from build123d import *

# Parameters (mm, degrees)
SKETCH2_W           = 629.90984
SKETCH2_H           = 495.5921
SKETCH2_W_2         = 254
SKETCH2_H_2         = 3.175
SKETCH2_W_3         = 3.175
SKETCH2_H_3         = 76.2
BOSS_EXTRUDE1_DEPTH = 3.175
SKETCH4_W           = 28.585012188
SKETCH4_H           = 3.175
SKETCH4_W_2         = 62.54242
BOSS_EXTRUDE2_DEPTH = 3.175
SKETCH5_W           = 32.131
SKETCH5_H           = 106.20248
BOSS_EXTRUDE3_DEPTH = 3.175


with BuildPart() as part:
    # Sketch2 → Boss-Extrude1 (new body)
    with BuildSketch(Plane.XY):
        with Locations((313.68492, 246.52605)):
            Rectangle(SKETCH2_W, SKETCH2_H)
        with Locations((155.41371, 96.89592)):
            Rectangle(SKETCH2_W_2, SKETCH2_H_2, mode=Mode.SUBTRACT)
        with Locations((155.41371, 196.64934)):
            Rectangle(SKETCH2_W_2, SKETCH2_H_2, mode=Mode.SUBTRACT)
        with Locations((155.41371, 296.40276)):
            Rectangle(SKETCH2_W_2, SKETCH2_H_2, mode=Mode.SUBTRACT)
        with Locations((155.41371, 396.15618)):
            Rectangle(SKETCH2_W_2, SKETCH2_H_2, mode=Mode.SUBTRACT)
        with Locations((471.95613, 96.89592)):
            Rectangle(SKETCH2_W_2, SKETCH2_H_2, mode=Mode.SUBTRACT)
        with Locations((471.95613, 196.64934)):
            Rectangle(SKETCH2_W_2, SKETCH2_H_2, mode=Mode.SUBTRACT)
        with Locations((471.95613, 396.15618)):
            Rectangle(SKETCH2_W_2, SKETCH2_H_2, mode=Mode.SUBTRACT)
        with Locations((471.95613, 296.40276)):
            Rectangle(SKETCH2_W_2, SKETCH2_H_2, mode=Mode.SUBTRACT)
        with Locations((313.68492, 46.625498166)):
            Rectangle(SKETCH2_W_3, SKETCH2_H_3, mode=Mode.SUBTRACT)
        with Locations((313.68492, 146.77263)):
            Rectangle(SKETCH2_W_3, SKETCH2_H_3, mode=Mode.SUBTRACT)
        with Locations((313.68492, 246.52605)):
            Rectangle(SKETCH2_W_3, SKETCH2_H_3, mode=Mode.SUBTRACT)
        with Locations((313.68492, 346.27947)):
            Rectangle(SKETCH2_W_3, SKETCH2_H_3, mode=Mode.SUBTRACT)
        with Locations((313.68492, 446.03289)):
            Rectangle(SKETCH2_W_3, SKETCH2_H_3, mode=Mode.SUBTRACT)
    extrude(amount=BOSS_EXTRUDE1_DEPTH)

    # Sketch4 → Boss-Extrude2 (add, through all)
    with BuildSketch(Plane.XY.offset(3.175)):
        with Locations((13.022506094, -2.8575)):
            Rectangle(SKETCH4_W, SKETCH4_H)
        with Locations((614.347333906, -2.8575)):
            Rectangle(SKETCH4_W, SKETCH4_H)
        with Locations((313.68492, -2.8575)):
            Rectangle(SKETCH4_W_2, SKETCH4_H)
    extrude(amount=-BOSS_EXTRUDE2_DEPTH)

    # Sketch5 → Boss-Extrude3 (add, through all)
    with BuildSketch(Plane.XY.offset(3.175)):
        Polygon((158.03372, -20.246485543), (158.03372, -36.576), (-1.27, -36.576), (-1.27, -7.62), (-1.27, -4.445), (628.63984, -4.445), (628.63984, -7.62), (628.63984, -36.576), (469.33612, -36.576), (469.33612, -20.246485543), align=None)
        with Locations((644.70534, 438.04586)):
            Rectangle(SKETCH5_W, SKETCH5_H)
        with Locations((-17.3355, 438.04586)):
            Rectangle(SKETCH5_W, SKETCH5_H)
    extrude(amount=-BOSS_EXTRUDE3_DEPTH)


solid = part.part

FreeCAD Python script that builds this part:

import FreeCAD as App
import Part
import Sketcher
from FreeCAD import Vector
Q = App.Units.Quantity

doc = App.newDocument("Part")
body = doc.addObject("PartDesign::Body", "Body")

# Sketch on XY plane
sketch1 = doc.addObject("Sketcher::SketchObject", "Sketch")
body.addObject(sketch1)
sketch1.AttachmentSupport = (doc.XY_Plane, [""])
sketch1.MapMode = "FlatFace"
sketch1.addGeometry([
    Part.LineSegment(Vector(-1.27, 494.3221, 0), Vector(-1.27, -1.27, 0)),  # 0
    Part.LineSegment(Vector(-1.27, -1.27, 0), Vector(628.63984, -1.27, 0)),  # 1
    Part.LineSegment(Vector(628.63984, -1.27, 0), Vector(628.63984, 494.3221, 0)),  # 2
    Part.LineSegment(Vector(628.63984, 494.3221, 0), Vector(-1.27, 494.3221, 0)),  # 3
    Part.LineSegment(Vector(282.41371, 95.30842, 0), Vector(28.41371, 95.30842, 0)),  # 4
    Part.LineSegment(Vector(28.41371, 95.30842, 0), Vector(28.41371, 98.48342, 0)),  # 5
    Part.LineSegment(Vector(28.41371, 98.48342, 0), Vector(282.41371, 98.48342, 0)),  # 6
    Part.LineSegment(Vector(282.41371, 98.48342, 0), Vector(282.41371, 95.30842, 0)),  # 7
    Part.LineSegment(Vector(282.41371, 195.06184, 0), Vector(28.41371, 195.06184, 0)),  # 8
    Part.LineSegment(Vector(28.41371, 195.06184, 0), Vector(28.41371, 198.23684, 0)),  # 9
    Part.LineSegment(Vector(28.41371, 198.23684, 0), Vector(282.41371, 198.23684, 0)),  # 10
    Part.LineSegment(Vector(282.41371, 198.23684, 0), Vector(282.41371, 195.06184, 0)),  # 11
    Part.LineSegment(Vector(315.27242, 8.525498, 0), Vector(312.09742, 8.525498, 0)),  # 12
    Part.LineSegment(Vector(312.09742, 8.525498, 0), Vector(312.09742, 84.725498, 0)),  # 13
    Part.LineSegment(Vector(312.09742, 84.725498, 0), Vector(315.27242, 84.725498, 0)),  # 14
    Part.LineSegment(Vector(315.27242, 84.725498, 0), Vector(315.27242, 8.525498, 0)),  # 15
    Part.LineSegment(Vector(598.95613, 95.30842, 0), Vector(344.95613, 95.30842, 0)),  # 16
    Part.LineSegment(Vector(344.95613, 95.30842, 0), Vector(344.95613, 98.48342, 0)),  # 17
    Part.LineSegment(Vector(344.95613, 98.48342, 0), Vector(598.95613, 98.48342, 0)),  # 18
    Part.LineSegment(Vector(598.95613, 98.48342, 0), Vector(598.95613, 95.30842, 0)),  # 19
    Part.LineSegment(Vector(315.27242, 108.67263, 0), Vector(312.09742, 108.67263, 0)),  # 20
    Part.LineSegment(Vector(312.09742, 108.67263, 0), Vector(312.09742, 184.87263, 0)),  # 21
    Part.LineSegment(Vector(312.09742, 184.87263, 0), Vector(315.27242, 184.87263, 0)),  # 22
    Part.LineSegment(Vector(315.27242, 184.87263, 0), Vector(315.27242, 108.67263, 0)),  # 23
    Part.LineSegment(Vector(598.95613, 195.06184, 0), Vector(344.95613, 195.06184, 0)),  # 24
    Part.LineSegment(Vector(344.95613, 195.06184, 0), Vector(344.95613, 198.23684, 0)),  # 25
    Part.LineSegment(Vector(344.95613, 198.23684, 0), Vector(598.95613, 198.23684, 0)),  # 26
    Part.LineSegment(Vector(598.95613, 198.23684, 0), Vector(598.95613, 195.06184, 0)),  # 27
    Part.LineSegment(Vector(282.41371, 294.81526, 0), Vector(28.41371, 294.81526, 0)),  # 28
    Part.LineSegment(Vector(28.41371, 294.81526, 0), Vector(28.41371, 297.99026, 0)),  # 29
    Part.LineSegment(Vector(28.41371, 297.99026, 0), Vector(282.41371, 297.99026, 0)),  # 30
    Part.LineSegment(Vector(282.41371, 297.99026, 0), Vector(282.41371, 294.81526, 0)),  # 31
    Part.LineSegment(Vector(282.41371, 394.56868, 0), Vector(28.41371, 394.56868, 0)),  # 32
    Part.LineSegment(Vector(28.41371, 394.56868, 0), Vector(28.41371, 397.74368, 0)),  # 33
    Part.LineSegment(Vector(28.41371, 397.74368, 0), Vector(282.41371, 397.74368, 0)),  # 34
    Part.LineSegment(Vector(282.41371, 397.74368, 0), Vector(282.41371, 394.56868, 0)),  # 35
    Part.LineSegment(Vector(315.27242, 208.42605, 0), Vector(312.09742, 208.42605, 0)),  # 36
    Part.LineSegment(Vector(312.09742, 208.42605, 0), Vector(312.09742, 284.62605, 0)),  # 37
    Part.LineSegment(Vector(312.09742, 284.62605, 0), Vector(315.27242, 284.62605, 0)),  # 38
    Part.LineSegment(Vector(315.27242, 284.62605, 0), Vector(315.27242, 208.42605, 0)),  # 39
    Part.LineSegment(Vector(315.27242, 308.17947, 0), Vector(312.09742, 308.17947, 0)),  # 40
    Part.LineSegment(Vector(312.09742, 308.17947, 0), Vector(312.09742, 384.37947, 0)),  # 41
    Part.LineSegment(Vector(312.09742, 384.37947, 0), Vector(315.27242, 384.37947, 0)),  # 42
    Part.LineSegment(Vector(315.27242, 384.37947, 0), Vector(315.27242, 308.17947, 0)),  # 43
    Part.LineSegment(Vector(598.95613, 294.81526, 0), Vector(344.95613, 294.81526, 0)),  # 44
    Part.LineSegment(Vector(344.95613, 294.81526, 0), Vector(344.95613, 297.99026, 0)),  # 45
    Part.LineSegment(Vector(344.95613, 297.99026, 0), Vector(598.95613, 297.99026, 0)),  # 46
    Part.LineSegment(Vector(598.95613, 297.99026, 0), Vector(598.95613, 294.81526, 0)),  # 47
    Part.LineSegment(Vector(315.27242, 407.93289, 0), Vector(312.09742, 407.93289, 0)),  # 48
    Part.LineSegment(Vector(312.09742, 407.93289, 0), Vector(312.09742, 484.13289, 0)),  # 49
    Part.LineSegment(Vector(312.09742, 484.13289, 0), Vector(315.27242, 484.13289, 0)),  # 50
    Part.LineSegment(Vector(315.27242, 484.13289, 0), Vector(315.27242, 407.93289, 0)),  # 51
    Part.LineSegment(Vector(598.95613, 394.56868, 0), Vector(344.95613, 394.56868, 0)),  # 52
    Part.LineSegment(Vector(344.95613, 394.56868, 0), Vector(344.95613, 397.74368, 0)),  # 53
    Part.LineSegment(Vector(344.95613, 397.74368, 0), Vector(598.95613, 397.74368, 0)),  # 54
    Part.LineSegment(Vector(598.95613, 397.74368, 0), Vector(598.95613, 394.56868, 0)),  # 55
], False)
sketch1.addConstraint([
    Sketcher.Constraint("Coincident", 0, 2, 1, 1),
    Sketcher.Constraint("Coincident", 1, 2, 2, 1),
    Sketcher.Constraint("Coincident", 2, 2, 3, 1),
    Sketcher.Constraint("Coincident", 3, 2, 0, 1),
    Sketcher.Constraint("Coincident", 4, 2, 5, 1),
    Sketcher.Constraint("Coincident", 5, 2, 6, 1),
    Sketcher.Constraint("Coincident", 6, 2, 7, 1),
    Sketcher.Constraint("Coincident", 7, 2, 4, 1),
    Sketcher.Constraint("Coincident", 8, 2, 9, 1),
    Sketcher.Constraint("Coincident", 9, 2, 10, 1),
    Sketcher.Constraint("Coincident", 10, 2, 11, 1),
    Sketcher.Constraint("Coincident", 11, 2, 8, 1),
    Sketcher.Constraint("Coincident", 12, 2, 13, 1),
    Sketcher.Constraint("Coincident", 13, 2, 14, 1),
    Sketcher.Constraint("Coincident", 14, 2, 15, 1),
    Sketcher.Constraint("Coincident", 15, 2, 12, 1),
    Sketcher.Constraint("Coincident", 16, 2, 17, 1),
    Sketcher.Constraint("Coincident", 17, 2, 18, 1),
    Sketcher.Constraint("Coincident", 18, 2, 19, 1),
    Sketcher.Constraint("Coincident", 19, 2, 16, 1),
    Sketcher.Constraint("Coincident", 20, 2, 21, 1),
    Sketcher.Constraint("Coincident", 21, 2, 22, 1),
    Sketcher.Constraint("Coincident", 22, 2, 23, 1),
    Sketcher.Constraint("Coincident", 23, 2, 20, 1),
    Sketcher.Constraint("Coincident", 24, 2, 25, 1),
    Sketcher.Constraint("Coincident", 25, 2, 26, 1),
    Sketcher.Constraint("Coincident", 26, 2, 27, 1),
    Sketcher.Constraint("Coincident", 27, 2, 24, 1),
    Sketcher.Constraint("Coincident", 28, 2, 29, 1),
    Sketcher.Constraint("Coincident", 29, 2, 30, 1),
    Sketcher.Constraint("Coincident", 30, 2, 31, 1),
    Sketcher.Constraint("Coincident", 31, 2, 28, 1),
    Sketcher.Constraint("Coincident", 32, 2, 33, 1),
    Sketcher.Constraint("Coincident", 33, 2, 34, 1),
    Sketcher.Constraint("Coincident", 34, 2, 35, 1),
    Sketcher.Constraint("Coincident", 35, 2, 32, 1),
    Sketcher.Constraint("Coincident", 36, 2, 37, 1),
    Sketcher.Constraint("Coincident", 37, 2, 38, 1),
    Sketcher.Constraint("Coincident", 38, 2, 39, 1),
    Sketcher.Constraint("Coincident", 39, 2, 36, 1),
    Sketcher.Constraint("Coincident", 40, 2, 41, 1),
    Sketcher.Constraint("Coincident", 41, 2, 42, 1),
    Sketcher.Constraint("Coincident", 42, 2, 43, 1),
    Sketcher.Constraint("Coincident", 43, 2, 40, 1),
    Sketcher.Constraint("Coincident", 44, 2, 45, 1),
    Sketcher.Constraint("Coincident", 45, 2, 46, 1),
    Sketcher.Constraint("Coincident", 46, 2, 47, 1),
    Sketcher.Constraint("Coincident", 47, 2, 44, 1),
    Sketcher.Constraint("Coincident", 48, 2, 49, 1),
    Sketcher.Constraint("Coincident", 49, 2, 50, 1),
    Sketcher.Constraint("Coincident", 50, 2, 51, 1),
    Sketcher.Constraint("Coincident", 51, 2, 48, 1),
    Sketcher.Constraint("Coincident", 52, 2, 53, 1),
    Sketcher.Constraint("Coincident", 53, 2, 54, 1),
    Sketcher.Constraint("Coincident", 54, 2, 55, 1),
    Sketcher.Constraint("Coincident", 55, 2, 52, 1),
    Sketcher.Constraint("Vertical", 0),
    Sketcher.Constraint("Horizontal", 1),
    Sketcher.Constraint("Vertical", 2),
    Sketcher.Constraint("Horizontal", 3),
    Sketcher.Constraint("Horizontal", 4),
    Sketcher.Constraint("Vertical", 5),
    Sketcher.Constraint("Horizontal", 6),
    Sketcher.Constraint("Vertical", 7),
    Sketcher.Constraint("Horizontal", 8),
    Sketcher.Constraint("Vertical", 9),
    Sketcher.Constraint("Horizontal", 10),
    Sketcher.Constraint("Vertical", 11),
    Sketcher.Constraint("Horizontal", 12),
    Sketcher.Constraint("Vertical", 13),
    Sketcher.Constraint("Horizontal", 14),
    Sketcher.Constraint("Vertical", 15),
    Sketcher.Constraint("Horizontal", 16),
    Sketcher.Constraint("Vertical", 17),
    Sketcher.Constraint("Horizontal", 18),
    Sketcher.Constraint("Vertical", 19),
    Sketcher.Constraint("Horizontal", 20),
    Sketcher.Constraint("Vertical", 21),
    Sketcher.Constraint("Horizontal", 22),
    Sketcher.Constraint("Vertical", 23),
    Sketcher.Constraint("Horizontal", 24),
    Sketcher.Constraint("Vertical", 25),
    Sketcher.Constraint("Horizontal", 26),
    Sketcher.Constraint("Vertical", 27),
    Sketcher.Constraint("Horizontal", 28),
    Sketcher.Constraint("Vertical", 29),
    Sketcher.Constraint("Horizontal", 30),
    Sketcher.Constraint("Vertical", 31),
    Sketcher.Constraint("Horizontal", 32),
    Sketcher.Constraint("Vertical", 33),
    Sketcher.Constraint("Horizontal", 34),
    Sketcher.Constraint("Vertical", 35),
    Sketcher.Constraint("Horizontal", 36),
    Sketcher.Constraint("Vertical", 37),
    Sketcher.Constraint("Horizontal", 38),
    Sketcher.Constraint("Vertical", 39),
    Sketcher.Constraint("Horizontal", 40),
    Sketcher.Constraint("Vertical", 41),
    Sketcher.Constraint("Horizontal", 42),
    Sketcher.Constraint("Vertical", 43),
    Sketcher.Constraint("Horizontal", 44),
    Sketcher.Constraint("Vertical", 45),
    Sketcher.Constraint("Horizontal", 46),
    Sketcher.Constraint("Vertical", 47),
    Sketcher.Constraint("Horizontal", 48),
    Sketcher.Constraint("Vertical", 49),
    Sketcher.Constraint("Horizontal", 50),
    Sketcher.Constraint("Vertical", 51),
    Sketcher.Constraint("Horizontal", 52),
    Sketcher.Constraint("Vertical", 53),
    Sketcher.Constraint("Horizontal", 54),
    Sketcher.Constraint("Vertical", 55),
    Sketcher.Constraint("Horizontal", 7, 2, 16, 2),
    Sketcher.Constraint("Horizontal", 6, 2, 17, 2),
    Sketcher.Constraint("Horizontal", 11, 2, 24, 2),
    Sketcher.Constraint("Horizontal", 10, 2, 25, 2),
    Sketcher.Constraint("Horizontal", 31, 2, 44, 2),
    Sketcher.Constraint("Horizontal", 30, 2, 45, 2),
    Sketcher.Constraint("Horizontal", 35, 2, 52, 2),
    Sketcher.Constraint("Horizontal", 34, 2, 53, 2),
    Sketcher.Constraint("Vertical", 5, 2, 8, 2),
    Sketcher.Constraint("Vertical", 7, 2, 10, 2),
    Sketcher.Constraint("Vertical", 13, 2, 20, 2),
    Sketcher.Constraint("Vertical", 15, 2, 22, 2),
    Sketcher.Constraint("Vertical", 17, 2, 24, 2),
    Sketcher.Constraint("Vertical", 19, 2, 26, 2),
    Sketcher.Constraint("Vertical", 9, 2, 28, 2),
    Sketcher.Constraint("Vertical", 11, 2, 30, 2),
    Sketcher.Constraint("Vertical", 29, 2, 32, 2),
    Sketcher.Constraint("Vertical", 31, 2, 34, 2),
    Sketcher.Constraint("Vertical", 21, 2, 36, 2),
    Sketcher.Constraint("Vertical", 23, 2, 38, 2),
    Sketcher.Constraint("Vertical", 37, 2, 40, 2),
    Sketcher.Constraint("Vertical", 39, 2, 42, 2),
    Sketcher.Constraint("Vertical", 25, 2, 44, 2),
    Sketcher.Constraint("Vertical", 27, 2, 46, 2),
    Sketcher.Constraint("Vertical", 41, 2, 48, 2),
    Sketcher.Constraint("Vertical", 43, 2, 50, 2),
    Sketcher.Constraint("Vertical", 45, 2, 52, 2),
    Sketcher.Constraint("Vertical", 47, 2, 54, 2),
    Sketcher.Constraint("Equal", 10, 16),
    Sketcher.Constraint("Equal", 50, 5),
    Sketcher.Constraint("Equal", 7, 9),
    Sketcher.Constraint("Equal", 15, 21),
    Sketcher.Constraint("Equal", 27, 29),
    Sketcher.Constraint("Equal", 31, 33),
    Sketcher.Constraint("Equal", 23, 37),
    Sketcher.Constraint("Equal", 39, 41),
    Sketcher.Constraint("Equal", 43, 49),
    Sketcher.Constraint("DistanceX", 4, 2, 4, 1, Q("10 in")),
    Sketcher.Constraint("DistanceY", 13, 1, 13, 2, Q("3 in")),
    Sketcher.Constraint("DistanceX", 12, 2, 12, 1, Q("0.125 in")),
    Sketcher.Constraint("DistanceX", 0, 2, -1, 1, Q("0.05 in")),
    Sketcher.Constraint("DistanceY", 0, 2, -1, 1, Q("0.05 in")),
    Sketcher.Constraint("DistanceX", 1, 1, 1, 2, Q("24.7996 in")),
    Sketcher.Constraint("DistanceY", 0, 2, 0, 1, Q("19.5115 in")),
    Sketcher.Constraint("DistanceY", -1, 1, 4, 2, Q("3.7523 in")),
    Sketcher.Constraint("DistanceY", -1, 1, 8, 2, Q("7.6796 in")),
    Sketcher.Constraint("DistanceX", -1, 1, 12, 2, Q("12.2873 in")),
    Sketcher.Constraint("DistanceY", -1, 1, 28, 2, Q("11.6069 in")),
    Sketcher.Constraint("DistanceY", -1, 1, 32, 2, Q("15.5342 in")),
    Sketcher.Constraint("DistanceX", 7, 2, 16, 2, Q("2.4623 in")),
    Sketcher.Constraint("DistanceY", 21, 2, 36, 2, Q("0.9273 in")),
    Sketcher.Constraint("DistanceY", 37, 2, 40, 2, Q("0.9273 in")),
    Sketcher.Constraint("DistanceY", 41, 2, 48, 2, Q("0.9273 in")),
    Sketcher.Constraint("DistanceY", -1, 1, 12, 2, 8.525498),
    Sketcher.Constraint("DistanceX", -1, 1, 4, 2, 28.41371),
    Sketcher.Constraint("DistanceY", -1, 1, 20, 2, 108.67263),
])
pad1 = doc.addObject("PartDesign::Pad", "Pad")
body.addObject(pad1)
pad1.Profile = sketch1
pad1.Length = Q("0.125 in")

# Sketch on XY plane
sketch2 = doc.addObject("Sketcher::SketchObject", "Sketch001")
body.addObject(sketch2)
sketch2.AttachmentSupport = (doc.XY_Plane, [""])
sketch2.MapMode = "FlatFace"
sketch2.AttachmentOffset = App.Placement(Vector(0, 0, 0.125 * 25.4), App.Rotation())
sketch2.addGeometry([
    Part.LineSegment(Vector(-1.27, -1.27, 0), Vector(-1.27, -4.445, 0)),  # 0
    Part.LineSegment(Vector(-1.27, -4.445, 0), Vector(27.315012, -4.445, 0)),  # 1
    Part.LineSegment(Vector(27.315012, -4.445, 0), Vector(27.315012, -1.27, 0)),  # 2
    Part.LineSegment(Vector(27.315012, -1.27, 0), Vector(-1.27, -1.27, 0)),  # 3
    Part.LineSegment(Vector(600.054828, -1.27, 0), Vector(600.054828, -4.445, 0)),  # 4
    Part.LineSegment(Vector(600.054828, -4.445, 0), Vector(628.63984, -4.445, 0)),  # 5
    Part.LineSegment(Vector(628.63984, -4.445, 0), Vector(628.63984, -1.27, 0)),  # 6
    Part.LineSegment(Vector(628.63984, -1.27, 0), Vector(600.054828, -1.27, 0)),  # 7
    Part.LineSegment(Vector(282.41371, -1.27, 0), Vector(282.41371, -4.445, 0)),  # 8
    Part.LineSegment(Vector(282.41371, -4.445, 0), Vector(344.95613, -4.445, 0)),  # 9
    Part.LineSegment(Vector(344.95613, -4.445, 0), Vector(344.95613, -1.27, 0)),  # 10
    Part.LineSegment(Vector(344.95613, -1.27, 0), Vector(282.41371, -1.27, 0)),  # 11
], False)
sketch2.addConstraint([
    Sketcher.Constraint("Coincident", 0, 2, 1, 1),
    Sketcher.Constraint("Coincident", 1, 2, 2, 1),
    Sketcher.Constraint("Coincident", 2, 2, 3, 1),
    Sketcher.Constraint("Coincident", 3, 2, 0, 1),
    Sketcher.Constraint("Coincident", 4, 2, 5, 1),
    Sketcher.Constraint("Coincident", 5, 2, 6, 1),
    Sketcher.Constraint("Coincident", 6, 2, 7, 1),
    Sketcher.Constraint("Coincident", 7, 2, 4, 1),
    Sketcher.Constraint("Coincident", 8, 2, 9, 1),
    Sketcher.Constraint("Coincident", 9, 2, 10, 1),
    Sketcher.Constraint("Coincident", 10, 2, 11, 1),
    Sketcher.Constraint("Coincident", 11, 2, 8, 1),
    Sketcher.Constraint("Vertical", 0),
    Sketcher.Constraint("Horizontal", 1),
    Sketcher.Constraint("Vertical", 2),
    Sketcher.Constraint("Horizontal", 3),
    Sketcher.Constraint("Vertical", 4),
    Sketcher.Constraint("Horizontal", 5),
    Sketcher.Constraint("Vertical", 6),
    Sketcher.Constraint("Horizontal", 7),
    Sketcher.Constraint("Vertical", 8),
    Sketcher.Constraint("Horizontal", 9),
    Sketcher.Constraint("Vertical", 10),
    Sketcher.Constraint("Horizontal", 11),
    Sketcher.Constraint("Horizontal", 1, 2, 4, 2),
    Sketcher.Constraint("Horizontal", 3, 2, 6, 2),
    Sketcher.Constraint("Horizontal", 5, 2, 8, 2),
    Sketcher.Constraint("Horizontal", 7, 2, 10, 2),
    Sketcher.Constraint("Equal", 3, 5),
    Sketcher.Constraint("DistanceY", 0, 2, 0, 1, Q("0.125 in")),
    Sketcher.Constraint("DistanceX", 0, 2, -1, 1, Q("0.05 in")),
    Sketcher.Constraint("DistanceY", 2, 2, -1, 1, Q("0.05 in")),
    Sketcher.Constraint("DistanceX", 9, 1, 9, 2, Q("2.4623 in")),
    Sketcher.Constraint("DistanceX", -1, 1, 5, 2, Q("24.7496 in")),
    Sketcher.Constraint("DistanceX", 1, 1, 1, 2, 28.585012),
    Sketcher.Constraint("DistanceX", -1, 1, 8, 2, 282.41371),
])
pad2 = doc.addObject("PartDesign::Pad", "Pad001")
body.addObject(pad2)
pad2.Profile = sketch2
pad2.Length = Q("0.125 in")
pad2.Reversed = True

# Sketch on XY plane
sketch3 = doc.addObject("Sketcher::SketchObject", "Sketch002")
body.addObject(sketch3)
sketch3.AttachmentSupport = (doc.XY_Plane, [""])
sketch3.MapMode = "FlatFace"
sketch3.AttachmentOffset = App.Placement(Vector(0, 0, 0.125 * 25.4), App.Rotation())
sketch3.addGeometry([
    Part.LineSegment(Vector(158.03372, -36.576, 0), Vector(158.03372, -20.246486, 0)),  # 0
    Part.LineSegment(Vector(158.03372, -20.246486, 0), Vector(469.33612, -20.246486, 0)),  # 1
    Part.LineSegment(Vector(469.33612, -20.246486, 0), Vector(469.33612, -36.576, 0)),  # 2
    Part.LineSegment(Vector(469.33612, -36.576, 0), Vector(628.63984, -36.576, 0)),  # 3
    Part.LineSegment(Vector(628.63984, -36.576, 0), Vector(628.63984, -4.445, 0)),  # 4
    Part.LineSegment(Vector(628.63984, -4.445, 0), Vector(-1.27, -4.445, 0)),  # 5
    Part.LineSegment(Vector(-1.27, -4.445, 0), Vector(-1.27, -36.576, 0)),  # 6
    Part.LineSegment(Vector(-1.27, -36.576, 0), Vector(158.03372, -36.576, 0)),  # 7
    Part.LineSegment(Vector(628.63984, 491.1471, 0), Vector(628.63984, 384.94462, 0)),  # 8
    Part.LineSegment(Vector(628.63984, 384.94462, 0), Vector(660.77084, 384.94462, 0)),  # 9
    Part.LineSegment(Vector(660.77084, 384.94462, 0), Vector(660.77084, 491.1471, 0)),  # 10
    Part.LineSegment(Vector(660.77084, 491.1471, 0), Vector(628.63984, 491.1471, 0)),  # 11
    Part.LineSegment(Vector(-33.401, 491.1471, 0), Vector(-33.401, 384.94462, 0)),  # 12
    Part.LineSegment(Vector(-33.401, 384.94462, 0), Vector(-1.27, 384.94462, 0)),  # 13
    Part.LineSegment(Vector(-1.27, 384.94462, 0), Vector(-1.27, 491.1471, 0)),  # 14
    Part.LineSegment(Vector(-1.27, 491.1471, 0), Vector(-33.401, 491.1471, 0)),  # 15
], False)
sketch3.addConstraint([
    Sketcher.Constraint("Coincident", 0, 2, 1, 1),
    Sketcher.Constraint("Coincident", 1, 2, 2, 1),
    Sketcher.Constraint("Coincident", 2, 2, 3, 1),
    Sketcher.Constraint("Coincident", 3, 2, 4, 1),
    Sketcher.Constraint("Coincident", 4, 2, 5, 1),
    Sketcher.Constraint("Coincident", 5, 2, 6, 1),
    Sketcher.Constraint("Coincident", 6, 2, 7, 1),
    Sketcher.Constraint("Coincident", 7, 2, 0, 1),
    Sketcher.Constraint("Coincident", 8, 2, 9, 1),
    Sketcher.Constraint("Coincident", 9, 2, 10, 1),
    Sketcher.Constraint("Coincident", 10, 2, 11, 1),
    Sketcher.Constraint("Coincident", 11, 2, 8, 1),
    Sketcher.Constraint("Coincident", 12, 2, 13, 1),
    Sketcher.Constraint("Coincident", 13, 2, 14, 1),
    Sketcher.Constraint("Coincident", 14, 2, 15, 1),
    Sketcher.Constraint("Coincident", 15, 2, 12, 1),
    Sketcher.Constraint("Vertical", 0),
    Sketcher.Constraint("Horizontal", 1),
    Sketcher.Constraint("Vertical", 2),
    Sketcher.Constraint("Horizontal", 3),
    Sketcher.Constraint("Vertical", 4),
    Sketcher.Constraint("Horizontal", 5),
    Sketcher.Constraint("Vertical", 6),
    Sketcher.Constraint("Horizontal", 7),
    Sketcher.Constraint("Vertical", 8),
    Sketcher.Constraint("Horizontal", 9),
    Sketcher.Constraint("Vertical", 10),
    Sketcher.Constraint("Horizontal", 11),
    Sketcher.Constraint("Vertical", 12),
    Sketcher.Constraint("Horizontal", 13),
    Sketcher.Constraint("Vertical", 14),
    Sketcher.Constraint("Horizontal", 15),
    Sketcher.Constraint("Horizontal", 3, 2, 6, 2),
    Sketcher.Constraint("Horizontal", 9, 2, 12, 2),
    Sketcher.Constraint("Horizontal", 11, 2, 14, 2),
    Sketcher.Constraint("Vertical", 4, 2, 8, 2),
    Sketcher.Constraint("Vertical", 6, 2, 13, 2),
    Sketcher.Constraint("Equal", 3, 7),
    Sketcher.Constraint("Equal", 11, 13),
    Sketcher.Constraint("Equal", 15, 4),
    Sketcher.Constraint("DistanceX", 1, 1, 1, 2, Q("12.256 in")),
    Sketcher.Constraint("DistanceX", 9, 1, 9, 2, Q("1.265 in")),
    Sketcher.Constraint("DistanceY", 2, 2, -1, 1, Q("1.44 in")),
    Sketcher.Constraint("DistanceX", 5, 2, -1, 1, Q("0.05 in")),
    Sketcher.Constraint("DistanceX", 3, 1, 3, 2, Q("6.2718 in")),
    Sketcher.Constraint("DistanceY", 8, 2, 8, 1, Q("4.1812 in")),
    Sketcher.Constraint("DistanceY", -1, 1, 8, 2, Q("15.1553 in")),
    Sketcher.Constraint("DistanceY", 0, 1, 0, 2, 16.329514),
])
pad3 = doc.addObject("PartDesign::Pad", "Pad002")
body.addObject(pad3)
pad3.Profile = sketch3
pad3.Length = Q("0.125 in")
pad3.Reversed = True

doc.recompute()
